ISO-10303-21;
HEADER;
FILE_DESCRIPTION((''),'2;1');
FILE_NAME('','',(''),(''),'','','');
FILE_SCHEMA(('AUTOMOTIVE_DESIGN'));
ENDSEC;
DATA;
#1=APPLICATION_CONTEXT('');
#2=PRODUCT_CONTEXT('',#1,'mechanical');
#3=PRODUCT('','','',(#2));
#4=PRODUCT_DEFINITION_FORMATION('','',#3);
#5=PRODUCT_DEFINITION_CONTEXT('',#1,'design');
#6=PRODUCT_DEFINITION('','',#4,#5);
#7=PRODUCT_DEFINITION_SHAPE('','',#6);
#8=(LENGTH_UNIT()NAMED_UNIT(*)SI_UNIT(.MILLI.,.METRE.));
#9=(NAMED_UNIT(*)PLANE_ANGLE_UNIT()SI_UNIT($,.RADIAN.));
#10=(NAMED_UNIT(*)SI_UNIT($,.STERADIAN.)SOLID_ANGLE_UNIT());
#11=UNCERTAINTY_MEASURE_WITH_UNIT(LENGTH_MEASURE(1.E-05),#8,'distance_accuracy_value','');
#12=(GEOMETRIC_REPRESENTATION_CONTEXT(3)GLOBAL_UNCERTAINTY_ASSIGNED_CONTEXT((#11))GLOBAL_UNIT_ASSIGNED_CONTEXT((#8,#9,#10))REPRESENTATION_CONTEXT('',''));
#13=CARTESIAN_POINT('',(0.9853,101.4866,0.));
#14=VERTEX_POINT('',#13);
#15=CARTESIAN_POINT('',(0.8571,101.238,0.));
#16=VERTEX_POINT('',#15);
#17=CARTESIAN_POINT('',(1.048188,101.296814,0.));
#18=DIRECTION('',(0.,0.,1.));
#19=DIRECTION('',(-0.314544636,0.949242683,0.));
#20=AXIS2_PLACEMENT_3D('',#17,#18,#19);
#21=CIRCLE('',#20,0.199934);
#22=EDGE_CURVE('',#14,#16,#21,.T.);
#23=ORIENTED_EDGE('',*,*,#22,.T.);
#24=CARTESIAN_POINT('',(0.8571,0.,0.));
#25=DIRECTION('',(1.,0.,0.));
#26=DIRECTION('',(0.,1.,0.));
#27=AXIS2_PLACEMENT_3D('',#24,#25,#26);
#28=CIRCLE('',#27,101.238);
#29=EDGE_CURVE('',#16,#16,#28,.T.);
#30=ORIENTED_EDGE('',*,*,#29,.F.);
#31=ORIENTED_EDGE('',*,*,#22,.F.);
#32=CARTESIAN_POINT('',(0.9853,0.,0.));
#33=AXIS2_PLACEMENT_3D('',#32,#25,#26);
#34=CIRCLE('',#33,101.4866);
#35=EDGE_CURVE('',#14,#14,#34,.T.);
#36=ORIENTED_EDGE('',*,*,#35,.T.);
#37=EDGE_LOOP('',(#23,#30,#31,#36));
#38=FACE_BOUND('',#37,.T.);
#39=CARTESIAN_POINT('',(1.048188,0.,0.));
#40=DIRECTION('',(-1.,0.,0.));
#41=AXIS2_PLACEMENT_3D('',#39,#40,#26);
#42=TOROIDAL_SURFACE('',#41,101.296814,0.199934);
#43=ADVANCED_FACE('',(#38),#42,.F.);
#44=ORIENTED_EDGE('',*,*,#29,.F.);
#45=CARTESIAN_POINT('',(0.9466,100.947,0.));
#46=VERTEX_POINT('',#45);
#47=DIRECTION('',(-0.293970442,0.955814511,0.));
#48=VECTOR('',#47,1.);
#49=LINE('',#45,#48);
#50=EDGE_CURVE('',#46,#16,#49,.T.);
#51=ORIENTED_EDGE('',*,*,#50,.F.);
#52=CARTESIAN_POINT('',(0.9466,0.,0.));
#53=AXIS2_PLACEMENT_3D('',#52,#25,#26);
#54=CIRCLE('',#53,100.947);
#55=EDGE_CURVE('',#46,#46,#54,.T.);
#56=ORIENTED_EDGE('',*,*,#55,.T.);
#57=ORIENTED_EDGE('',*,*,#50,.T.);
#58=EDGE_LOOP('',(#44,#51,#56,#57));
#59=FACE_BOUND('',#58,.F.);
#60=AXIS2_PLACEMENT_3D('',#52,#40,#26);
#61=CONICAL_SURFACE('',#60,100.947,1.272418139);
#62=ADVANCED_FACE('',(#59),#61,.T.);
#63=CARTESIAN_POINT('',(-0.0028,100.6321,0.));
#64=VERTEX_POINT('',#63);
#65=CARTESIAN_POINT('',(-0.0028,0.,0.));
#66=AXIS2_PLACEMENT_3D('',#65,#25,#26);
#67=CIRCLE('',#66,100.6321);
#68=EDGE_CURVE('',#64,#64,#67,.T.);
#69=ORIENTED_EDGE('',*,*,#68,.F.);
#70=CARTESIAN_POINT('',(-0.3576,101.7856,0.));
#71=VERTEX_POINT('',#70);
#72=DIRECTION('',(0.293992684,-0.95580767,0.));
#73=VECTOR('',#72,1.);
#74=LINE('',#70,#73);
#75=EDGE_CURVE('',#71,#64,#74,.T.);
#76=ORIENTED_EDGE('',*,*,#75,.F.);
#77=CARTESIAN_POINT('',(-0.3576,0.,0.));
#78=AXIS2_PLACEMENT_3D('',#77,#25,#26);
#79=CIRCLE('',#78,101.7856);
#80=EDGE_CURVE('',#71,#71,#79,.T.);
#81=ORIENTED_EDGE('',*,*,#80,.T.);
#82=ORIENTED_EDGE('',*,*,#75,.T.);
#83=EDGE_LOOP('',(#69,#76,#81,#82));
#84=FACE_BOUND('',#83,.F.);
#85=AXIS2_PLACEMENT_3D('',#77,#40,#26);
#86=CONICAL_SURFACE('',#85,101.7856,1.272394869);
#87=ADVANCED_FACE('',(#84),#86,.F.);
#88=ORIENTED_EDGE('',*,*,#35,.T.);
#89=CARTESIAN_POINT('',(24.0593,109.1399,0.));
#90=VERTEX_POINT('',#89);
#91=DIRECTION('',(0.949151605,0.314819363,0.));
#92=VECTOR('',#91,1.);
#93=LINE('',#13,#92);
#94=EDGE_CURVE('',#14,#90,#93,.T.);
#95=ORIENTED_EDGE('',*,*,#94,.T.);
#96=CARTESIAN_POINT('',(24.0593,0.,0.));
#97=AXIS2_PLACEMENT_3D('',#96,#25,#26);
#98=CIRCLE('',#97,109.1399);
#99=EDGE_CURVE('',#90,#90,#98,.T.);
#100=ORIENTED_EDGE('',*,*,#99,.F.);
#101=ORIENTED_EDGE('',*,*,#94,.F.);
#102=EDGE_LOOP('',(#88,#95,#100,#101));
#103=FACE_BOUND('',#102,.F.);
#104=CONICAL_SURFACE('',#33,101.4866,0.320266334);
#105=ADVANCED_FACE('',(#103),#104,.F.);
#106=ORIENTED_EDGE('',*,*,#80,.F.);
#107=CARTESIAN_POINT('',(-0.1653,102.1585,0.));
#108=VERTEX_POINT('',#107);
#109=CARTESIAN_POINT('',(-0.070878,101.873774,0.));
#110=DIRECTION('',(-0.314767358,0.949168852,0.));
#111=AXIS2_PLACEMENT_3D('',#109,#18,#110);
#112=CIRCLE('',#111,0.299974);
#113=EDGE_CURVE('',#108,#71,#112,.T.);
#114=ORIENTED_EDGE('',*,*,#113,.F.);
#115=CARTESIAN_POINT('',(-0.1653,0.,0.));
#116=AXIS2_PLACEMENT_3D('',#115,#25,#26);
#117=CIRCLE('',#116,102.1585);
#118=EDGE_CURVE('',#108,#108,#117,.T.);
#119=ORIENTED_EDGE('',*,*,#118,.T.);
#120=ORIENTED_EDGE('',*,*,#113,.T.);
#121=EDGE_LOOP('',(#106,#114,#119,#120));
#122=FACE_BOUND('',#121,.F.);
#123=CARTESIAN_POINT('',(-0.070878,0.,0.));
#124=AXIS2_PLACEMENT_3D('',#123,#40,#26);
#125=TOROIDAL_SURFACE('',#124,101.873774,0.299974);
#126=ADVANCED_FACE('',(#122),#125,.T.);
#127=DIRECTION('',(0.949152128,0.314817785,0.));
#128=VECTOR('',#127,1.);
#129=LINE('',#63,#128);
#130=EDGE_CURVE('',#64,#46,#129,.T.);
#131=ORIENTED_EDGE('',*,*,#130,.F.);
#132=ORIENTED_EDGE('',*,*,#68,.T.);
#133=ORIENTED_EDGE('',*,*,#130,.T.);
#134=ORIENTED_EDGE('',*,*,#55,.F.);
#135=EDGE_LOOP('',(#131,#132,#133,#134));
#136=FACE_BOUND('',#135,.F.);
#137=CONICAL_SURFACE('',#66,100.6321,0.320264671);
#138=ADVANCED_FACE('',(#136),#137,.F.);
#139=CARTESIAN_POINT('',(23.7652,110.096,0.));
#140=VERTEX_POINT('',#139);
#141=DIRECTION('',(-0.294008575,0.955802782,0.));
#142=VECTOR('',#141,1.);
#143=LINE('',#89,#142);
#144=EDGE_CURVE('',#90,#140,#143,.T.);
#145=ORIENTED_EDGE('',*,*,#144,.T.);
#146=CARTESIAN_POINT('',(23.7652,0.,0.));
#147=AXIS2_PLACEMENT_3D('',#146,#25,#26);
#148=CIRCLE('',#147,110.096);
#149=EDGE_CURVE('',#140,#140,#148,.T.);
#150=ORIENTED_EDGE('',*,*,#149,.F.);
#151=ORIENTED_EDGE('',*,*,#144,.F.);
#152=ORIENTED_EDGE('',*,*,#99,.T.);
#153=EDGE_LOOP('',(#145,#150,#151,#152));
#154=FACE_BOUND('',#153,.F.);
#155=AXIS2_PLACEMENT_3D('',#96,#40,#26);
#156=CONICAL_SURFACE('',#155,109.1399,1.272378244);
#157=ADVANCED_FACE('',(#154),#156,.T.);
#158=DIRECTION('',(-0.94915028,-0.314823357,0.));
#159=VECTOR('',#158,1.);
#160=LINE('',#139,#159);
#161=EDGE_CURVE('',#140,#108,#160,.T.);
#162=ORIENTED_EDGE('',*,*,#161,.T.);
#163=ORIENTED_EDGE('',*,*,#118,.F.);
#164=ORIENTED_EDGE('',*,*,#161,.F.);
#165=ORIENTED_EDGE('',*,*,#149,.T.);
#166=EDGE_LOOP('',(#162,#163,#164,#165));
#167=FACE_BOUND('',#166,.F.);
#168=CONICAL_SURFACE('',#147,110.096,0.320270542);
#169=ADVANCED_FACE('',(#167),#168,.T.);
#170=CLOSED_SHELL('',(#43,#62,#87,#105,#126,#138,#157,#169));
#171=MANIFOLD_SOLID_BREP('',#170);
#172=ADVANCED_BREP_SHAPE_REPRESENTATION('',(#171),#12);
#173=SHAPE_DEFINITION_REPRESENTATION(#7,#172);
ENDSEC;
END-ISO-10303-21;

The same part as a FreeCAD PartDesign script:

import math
import FreeCAD as App
import Part
import Sketcher

doc = App.newDocument("Part")
body = doc.addObject("PartDesign::Body", "Body")

sketch1 = body.newObject("Sketcher::SketchObject", "Sketch")
sketch1.AttachmentSupport = (doc.getObject("XY_Plane"), [""])
sketch1.MapMode = "FlatFace"
sketch1.addGeometry([
    Part.LineSegment(App.Vector(23.7652, 110.096, 0), App.Vector(-0.1653, 102.1585, 0)),
    Part.ArcOfCircle(Part.Circle(App.Vector(-0.0709, 101.8738, 0), App.Vector(0, 0, 1), 0.299942), math.radians(108.344339), math.radians(197.09992)),
    Part.LineSegment(App.Vector(-0.3576, 101.7856, 0), App.Vector(-0.0028, 100.6321, 0)),
    Part.LineSegment(App.Vector(-0.0028, 100.6321, 0), App.Vector(0.9466, 100.947, 0)),
    Part.LineSegment(App.Vector(0.9466, 100.947, 0), App.Vector(0.8571, 101.238, 0)),
    Part.ArcOfCircle(Part.Circle(App.Vector(1.0482, 101.2968, 0), App.Vector(0, 0, 1), 0.199951), math.radians(108.335273), math.radians(197.102729)),
    Part.LineSegment(App.Vector(0.9853, 101.4866, 0), App.Vector(24.0593, 109.1399, 0)),
    Part.LineSegment(App.Vector(24.0593, 109.1399, 0), App.Vector(23.7652, 110.096, 0)),
], False)
sketch1.addConstraint([
    Sketcher.Constraint("Coincident", 0, 2, 1, 1),
    Sketcher.Constraint("Coincident", 1, 2, 2, 1),
    Sketcher.Constraint("Coincident", 2, 2, 3, 1),
    Sketcher.Constraint("Coincident", 3, 2, 4, 1),
    Sketcher.Constraint("Coincident", 4, 2, 5, 2),
    Sketcher.Constraint("Coincident", 5, 1, 6, 1),
    Sketcher.Constraint("Coincident", 6, 2, 7, 1),
    Sketcher.Constraint("Coincident", 7, 2, 0, 1),
    Sketcher.Constraint("Radius", 1, 0.3),
    Sketcher.Constraint("Radius", 5, 0.2),
    Sketcher.Constraint("DistanceY", -1, 1, 6, 2, 109.14),
    Sketcher.Constraint("DistanceX", 2, 2, 4, 2, 0.86),
    Sketcher.Constraint("DistanceX", 5, 1, 7, 2, 22.78),
    Sketcher.Constraint("DistanceX", 1, 3, -1, 1, 0.071),
    Sketcher.Constraint("DistanceY", -1, 1, 2, 2, 100.632),
    Sketcher.Constraint("DistanceY", -1, 1, 3, 2, 100.947),
    Sketcher.Constraint("DistanceX", -1, 1, 4, 2, 0.857),
    Sketcher.Constraint("DistanceY", -1, 1, 4, 2, 101.238),
    Sketcher.Constraint("DistanceY", -1, 1, 7, 2, 110.096),
    Sketcher.Constraint("DistanceX", 1, 3, 5, 3, 1.119),
    Sketcher.Constraint("DistanceY", 5, 3, 1, 3, 0.577),
    Sketcher.Constraint("DistanceY", 1, 2, 0, 2, 0.373),
    Sketcher.Constraint("DistanceX", 0, 2, 3, 2, 1.112),
    Sketcher.Constraint("DistanceX", 5, 1, 5, 3, 0.063),
    Sketcher.Constraint("DistanceX", 5, 1, 6, 2, 23.074),
    Sketcher.Constraint("Distance", 0, 25.2126),
])
revolution = body.newObject("PartDesign::Revolution", "Revolution")
revolution.Profile = sketch1
revolution.ReferenceAxis = (sketch1, ["H_Axis"])
revolution.Angle = 360

doc.recompute()
